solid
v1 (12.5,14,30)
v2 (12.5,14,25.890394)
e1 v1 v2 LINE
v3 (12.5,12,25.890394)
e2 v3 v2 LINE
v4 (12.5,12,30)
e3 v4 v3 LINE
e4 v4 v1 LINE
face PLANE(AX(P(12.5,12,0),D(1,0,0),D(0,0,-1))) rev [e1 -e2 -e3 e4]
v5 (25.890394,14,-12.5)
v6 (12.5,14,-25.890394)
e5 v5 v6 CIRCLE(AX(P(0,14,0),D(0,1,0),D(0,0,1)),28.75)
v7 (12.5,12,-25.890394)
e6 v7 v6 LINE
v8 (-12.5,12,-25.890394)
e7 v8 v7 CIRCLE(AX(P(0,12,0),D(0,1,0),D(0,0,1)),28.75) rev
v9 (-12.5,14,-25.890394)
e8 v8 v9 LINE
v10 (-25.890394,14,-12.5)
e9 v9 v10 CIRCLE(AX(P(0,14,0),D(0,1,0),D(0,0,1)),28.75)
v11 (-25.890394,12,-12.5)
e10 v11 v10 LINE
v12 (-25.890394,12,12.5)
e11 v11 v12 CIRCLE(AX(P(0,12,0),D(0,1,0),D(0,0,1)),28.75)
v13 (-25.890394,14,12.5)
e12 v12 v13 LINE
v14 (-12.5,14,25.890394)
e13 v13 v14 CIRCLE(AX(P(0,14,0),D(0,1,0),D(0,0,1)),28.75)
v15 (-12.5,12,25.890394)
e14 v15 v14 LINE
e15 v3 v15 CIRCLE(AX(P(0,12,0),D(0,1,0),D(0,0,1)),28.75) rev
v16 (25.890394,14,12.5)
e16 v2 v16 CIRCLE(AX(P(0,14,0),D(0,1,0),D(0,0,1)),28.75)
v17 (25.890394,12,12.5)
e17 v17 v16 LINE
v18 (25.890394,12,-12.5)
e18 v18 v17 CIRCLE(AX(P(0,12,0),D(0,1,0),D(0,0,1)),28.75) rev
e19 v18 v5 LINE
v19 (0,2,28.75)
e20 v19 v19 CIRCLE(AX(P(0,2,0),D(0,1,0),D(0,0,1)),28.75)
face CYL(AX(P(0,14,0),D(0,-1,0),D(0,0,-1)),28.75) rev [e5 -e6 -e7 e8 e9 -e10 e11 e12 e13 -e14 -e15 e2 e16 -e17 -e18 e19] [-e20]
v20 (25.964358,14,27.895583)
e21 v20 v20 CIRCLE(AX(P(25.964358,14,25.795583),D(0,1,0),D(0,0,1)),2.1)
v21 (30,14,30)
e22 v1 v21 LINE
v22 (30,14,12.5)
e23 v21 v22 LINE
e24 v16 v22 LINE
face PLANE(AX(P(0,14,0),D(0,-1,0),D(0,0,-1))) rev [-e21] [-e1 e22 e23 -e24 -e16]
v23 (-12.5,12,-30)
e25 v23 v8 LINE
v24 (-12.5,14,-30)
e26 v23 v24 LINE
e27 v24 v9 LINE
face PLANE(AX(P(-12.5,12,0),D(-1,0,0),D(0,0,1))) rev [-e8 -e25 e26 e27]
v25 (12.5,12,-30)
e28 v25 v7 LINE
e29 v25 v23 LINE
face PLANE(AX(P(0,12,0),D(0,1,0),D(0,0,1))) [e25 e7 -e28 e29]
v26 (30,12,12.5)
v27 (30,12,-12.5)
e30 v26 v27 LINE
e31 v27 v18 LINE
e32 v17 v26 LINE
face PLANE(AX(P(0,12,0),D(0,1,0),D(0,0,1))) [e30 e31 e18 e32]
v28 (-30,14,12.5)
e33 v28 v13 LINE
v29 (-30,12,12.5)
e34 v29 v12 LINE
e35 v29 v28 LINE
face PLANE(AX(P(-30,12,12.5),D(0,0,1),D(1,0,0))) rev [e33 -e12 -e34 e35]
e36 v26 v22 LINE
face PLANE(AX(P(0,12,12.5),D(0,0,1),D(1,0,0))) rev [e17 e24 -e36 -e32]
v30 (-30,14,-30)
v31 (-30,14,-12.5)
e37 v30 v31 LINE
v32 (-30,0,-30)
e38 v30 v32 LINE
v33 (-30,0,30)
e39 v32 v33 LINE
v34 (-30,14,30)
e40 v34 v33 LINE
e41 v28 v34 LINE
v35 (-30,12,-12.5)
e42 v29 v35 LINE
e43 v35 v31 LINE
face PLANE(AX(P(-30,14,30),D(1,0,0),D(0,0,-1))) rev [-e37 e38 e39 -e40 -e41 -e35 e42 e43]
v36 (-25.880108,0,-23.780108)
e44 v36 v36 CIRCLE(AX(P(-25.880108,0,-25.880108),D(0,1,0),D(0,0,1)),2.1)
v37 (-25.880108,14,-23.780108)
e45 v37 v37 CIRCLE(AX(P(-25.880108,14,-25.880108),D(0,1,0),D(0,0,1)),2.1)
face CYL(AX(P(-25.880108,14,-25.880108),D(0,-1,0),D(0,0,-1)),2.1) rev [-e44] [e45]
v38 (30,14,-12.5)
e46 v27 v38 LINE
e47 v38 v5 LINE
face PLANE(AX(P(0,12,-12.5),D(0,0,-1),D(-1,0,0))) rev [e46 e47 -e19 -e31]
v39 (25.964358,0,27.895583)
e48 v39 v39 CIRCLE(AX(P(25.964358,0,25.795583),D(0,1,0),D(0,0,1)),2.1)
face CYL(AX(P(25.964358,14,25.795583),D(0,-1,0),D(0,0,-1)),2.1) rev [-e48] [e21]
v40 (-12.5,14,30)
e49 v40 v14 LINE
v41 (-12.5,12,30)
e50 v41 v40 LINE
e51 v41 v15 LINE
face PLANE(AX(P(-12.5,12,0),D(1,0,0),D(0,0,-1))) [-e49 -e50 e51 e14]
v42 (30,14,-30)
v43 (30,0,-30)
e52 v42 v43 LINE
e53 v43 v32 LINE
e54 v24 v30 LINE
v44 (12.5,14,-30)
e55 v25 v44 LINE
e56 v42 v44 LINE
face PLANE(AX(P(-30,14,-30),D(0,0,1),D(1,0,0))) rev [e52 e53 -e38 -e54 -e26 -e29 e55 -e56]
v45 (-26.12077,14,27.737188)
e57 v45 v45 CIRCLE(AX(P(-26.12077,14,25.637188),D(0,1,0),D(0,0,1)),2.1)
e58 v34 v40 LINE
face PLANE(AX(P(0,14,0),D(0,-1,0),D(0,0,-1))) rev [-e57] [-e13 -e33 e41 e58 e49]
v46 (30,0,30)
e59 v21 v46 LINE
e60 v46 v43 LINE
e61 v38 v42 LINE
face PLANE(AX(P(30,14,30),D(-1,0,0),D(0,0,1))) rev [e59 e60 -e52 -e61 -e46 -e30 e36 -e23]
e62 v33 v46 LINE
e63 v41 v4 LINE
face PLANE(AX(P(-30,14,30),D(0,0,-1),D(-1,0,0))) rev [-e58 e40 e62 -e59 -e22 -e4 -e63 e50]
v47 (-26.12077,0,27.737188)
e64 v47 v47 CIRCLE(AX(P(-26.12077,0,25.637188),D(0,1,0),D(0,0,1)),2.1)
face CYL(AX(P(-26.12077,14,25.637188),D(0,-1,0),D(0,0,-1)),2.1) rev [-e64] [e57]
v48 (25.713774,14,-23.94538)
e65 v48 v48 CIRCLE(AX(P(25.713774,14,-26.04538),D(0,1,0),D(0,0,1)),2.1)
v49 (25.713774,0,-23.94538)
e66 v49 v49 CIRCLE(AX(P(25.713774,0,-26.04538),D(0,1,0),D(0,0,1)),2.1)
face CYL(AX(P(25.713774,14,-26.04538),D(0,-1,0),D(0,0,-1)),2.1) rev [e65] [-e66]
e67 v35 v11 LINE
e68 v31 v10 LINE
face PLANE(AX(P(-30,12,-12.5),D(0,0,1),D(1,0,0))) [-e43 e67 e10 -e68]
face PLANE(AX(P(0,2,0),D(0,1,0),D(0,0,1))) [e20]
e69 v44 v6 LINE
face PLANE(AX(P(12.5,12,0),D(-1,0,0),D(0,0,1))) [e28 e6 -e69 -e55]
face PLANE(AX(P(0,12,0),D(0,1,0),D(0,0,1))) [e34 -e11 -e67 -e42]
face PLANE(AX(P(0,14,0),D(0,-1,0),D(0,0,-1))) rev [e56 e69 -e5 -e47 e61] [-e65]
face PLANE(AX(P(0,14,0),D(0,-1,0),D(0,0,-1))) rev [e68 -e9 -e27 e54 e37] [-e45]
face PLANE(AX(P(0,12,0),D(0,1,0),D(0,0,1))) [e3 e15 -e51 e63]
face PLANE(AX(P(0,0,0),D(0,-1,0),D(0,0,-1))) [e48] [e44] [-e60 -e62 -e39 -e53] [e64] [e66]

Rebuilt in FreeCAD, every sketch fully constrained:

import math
import FreeCAD as App
import Part
import Sketcher

V = App.Vector


def add_polygon(sketch, points):
    """Adds a closed chain of lines whose ends are joined by coincident constraints."""
    first, n = sketch.GeometryCount, len(points)
    for a, b in zip(points, points[1:] + points[:1]):
        sketch.addGeometry(Part.LineSegment(App.Vector(*a, 0), App.Vector(*b, 0)), False)
    for i in range(n):
        sketch.addConstraint(Sketcher.Constraint("Coincident", first + i, 2, first + (i + 1) % n, 1))

doc = App.newDocument("Part")
body = doc.addObject("PartDesign::Body", "Body")

# Sketch on XZ plane
sketch1 = doc.addObject("Sketcher::SketchObject", "Sketch")
body.addObject(sketch1)
sketch1.AttachmentSupport = (doc.XZ_Plane, [""])
sketch1.MapMode = "FlatFace"
add_polygon(sketch1, [(-30, -30), (-30, 30), (30, 30), (30, -30)])  # lines 0-3
sketch1.addGeometry(Part.Circle(V(-26.12077, 25.637188, 0), V(0, 0, 1), 2.1), False)  # 4
sketch1.addGeometry(Part.Circle(V(25.964358, 25.795583, 0), V(0, 0, 1), 2.1), False)  # 5
sketch1.addGeometry(Part.Circle(V(-25.880108, -25.880108, 0), V(0, 0, 1), 2.1), False)  # 6
sketch1.addGeometry(Part.Circle(V(0, 0, 0), V(0, 0, 1), 28.75), False)  # 7
sketch1.addGeometry(Part.Circle(V(25.713774, -26.04538, 0), V(0, 0, 1), 2.1), False)  # 8
sketch1.addConstraint(Sketcher.Constraint("Vertical", 0))
sketch1.addConstraint(Sketcher.Constraint("Horizontal", 1))
sketch1.addConstraint(Sketcher.Constraint("Vertical", 2))
sketch1.addConstraint(Sketcher.Constraint("Horizontal", 3))
sketch1.addConstraint(Sketcher.Constraint("Coincident", 7, 3, -1, 1))
sketch1.addConstraint(Sketcher.Constraint("Equal", 4, 5))
sketch1.addConstraint(Sketcher.Constraint("Equal", 5, 6))
sketch1.addConstraint(Sketcher.Constraint("Equal", 6, 8))
sketch1.addConstraint(Sketcher.Constraint("Symmetric", 0, 2, 2, 2, -1, 1))
sketch1.addConstraint(Sketcher.Constraint("Equal", 3, 0))
sketch1.addConstraint(Sketcher.Constraint("Diameter", 4, 4.2))
sketch1.addConstraint(Sketcher.Constraint("Diameter", 7, 57.5))
sketch1.addConstraint(Sketcher.Constraint("DistanceX", 1, 1, 1, 2, 60.0))
sketch1.addConstraint(Sketcher.Constraint("DistanceX", 4, 3, -1, 1, 26.12077))
sketch1.addConstraint(Sketcher.Constraint("DistanceX", -1, 1, 5, 3, 25.964358))
sketch1.addConstraint(Sketcher.Constraint("DistanceX", 6, 3, -1, 1, 25.880108))
sketch1.addConstraint(Sketcher.Constraint("DistanceY", 6, 3, -1, 1, 25.880108))
sketch1.addConstraint(Sketcher.Constraint("DistanceY", 8, 3, -1, 1, 26.04538))
sketch1.addConstraint(Sketcher.Constraint("DistanceY", 6, 3, 5, 3, 51.675691))
sketch1.addConstraint(Sketcher.Constraint("DistanceY", -1, 1, 4, 3, 25.637188))
sketch1.addConstraint(Sketcher.Constraint("DistanceX", -1, 1, 8, 3, 25.713774))
pad1 = doc.addObject("PartDesign::Pad", "Pad")
body.addObject(pad1)
pad1.Profile = sketch1
pad1.Length = 14
pad1.Reversed = True

# Sketch on XZ plane
sketch2 = doc.addObject("Sketcher::SketchObject", "Sketch001")
body.addObject(sketch2)
sketch2.AttachmentSupport = (doc.XZ_Plane, [""])
sketch2.MapMode = "FlatFace"
sketch2.addGeometry(Part.Circle(V(0, 0, 0), V(0, 0, 1), 28.75), False)
sketch2.addConstraint(Sketcher.Constraint("Coincident", 0, 3, -1, 1))
sketch2.addConstraint(Sketcher.Constraint("Diameter", 0, 57.5))
pad2 = doc.addObject("PartDesign::Pad", "Pad001")
body.addObject(pad2)
pad2.Profile = sketch2
pad2.Length = 2
pad2.Reversed = True

# Sketch on XZ plane
sketch3 = doc.addObject("Sketcher::SketchObject", "Sketch002")
body.addObject(sketch3)
sketch3.AttachmentSupport = (doc.XZ_Plane, [""])
sketch3.MapMode = "FlatFace"
sketch3.AttachmentOffset = App.Placement(V(0, 0, -12), App.Rotation())
sketch3.addGeometry(Part.LineSegment(V(12.5, -30, 0), V(-12.5, -30, 0)), False)
sketch3.addGeometry(Part.LineSegment(V(-12.5, -30, 0), V(-12.5, -25.890394, 0)), False)
sketch3.addGeometry(Part.ArcOfCircle(Part.Circle(V(0, 0, 0), V(0, 0, 1), 28.75), math.radians(-115.771462), math.radians(-64.228538)), False)
sketch3.addGeometry(Part.LineSegment(V(12.5, -25.890394, 0), V(12.5, -30, 0)), False)
sketch3.addGeometry(Part.ArcOfCircle(Part.Circle(V(0, 0, 0), V(0, 0, 1), 28.75), math.radians(154.228538), math.radians(205.771462)), False)
sketch3.addGeometry(Part.LineSegment(V(-25.890394, -12.5, 0), V(-30, -12.5, 0)), False)
sketch3.addGeometry(Part.LineSegment(V(-30, -12.5, 0), V(-30, 12.5, 0)), False)
sketch3.addGeometry(Part.LineSegment(V(-30, 12.5, 0), V(-25.890394, 12.5, 0)), False)
sketch3.addGeometry(Part.LineSegment(V(30, -12.5, 0), V(25.890394, -12.5, 0)), False)
sketch3.addGeometry(Part.ArcOfCircle(Part.Circle(V(0, 0, 0), V(0, 0, 1), 28.75), math.radians(-25.771462), math.radians(25.771462)), False)
sketch3.addGeometry(Part.LineSegment(V(25.890394, 12.5, 0), V(30, 12.5, 0)), False)
sketch3.addGeometry(Part.LineSegment(V(30, 12.5, 0), V(30, -12.5, 0)), False)
sketch3.addGeometry(Part.ArcOfCircle(Part.Circle(V(0, 0, 0), V(0, 0, 1), 28.75), math.radians(64.228538), math.radians(115.771462)), False)
sketch3.addGeometry(Part.LineSegment(V(-12.5, 25.890394, 0), V(-12.5, 30, 0)), False)
sketch3.addGeometry(Part.LineSegment(V(-12.5, 30, 0), V(12.5, 30, 0)), False)
sketch3.addGeometry(Part.LineSegment(V(12.5, 30, 0), V(12.5, 25.890394, 0)), False)
sketch3.addConstraint(Sketcher.Constraint("Coincident", 0, 2, 1, 1))
sketch3.addConstraint(Sketcher.Constraint("Coincident", 1, 2, 2, 1))
sketch3.addConstraint(Sketcher.Constraint("Coincident", 2, 2, 3, 1))
sketch3.addConstraint(Sketcher.Constraint("Coincident", 3, 2, 0, 1))
sketch3.addConstraint(Sketcher.Constraint("Coincident", 4, 2, 5, 1))
sketch3.addConstraint(Sketcher.Constraint("Coincident", 5, 2, 6, 1))
sketch3.addConstraint(Sketcher.Constraint("Coincident", 6, 2, 7, 1))
sketch3.addConstraint(Sketcher.Constraint("Coincident", 7, 2, 4, 1))
sketch3.addConstraint(Sketcher.Constraint("Coincident", 8, 2, 9, 1))
sketch3.addConstraint(Sketcher.Constraint("Coincident", 9, 2, 10, 1))
sketch3.addConstraint(Sketcher.Constraint("Coincident", 10, 2, 11, 1))
sketch3.addConstraint(Sketcher.Constraint("Coincident", 11, 2, 8, 1))
sketch3.addConstraint(Sketcher.Constraint("Coincident", 12, 2, 13, 1))
sketch3.addConstraint(Sketcher.Constraint("Coincident", 13, 2, 14, 1))
sketch3.addConstraint(Sketcher.Constraint("Coincident", 14, 2, 15, 1))
sketch3.addConstraint(Sketcher.Constraint("Coincident", 15, 2, 12, 1))
sketch3.addConstraint(Sketcher.Constraint("Horizontal", 0))
sketch3.addConstraint(Sketcher.Constraint("Vertical", 1))
sketch3.addConstraint(Sketcher.Constraint("Vertical", 3))
sketch3.addConstraint(Sketcher.Constraint("Horizontal", 5))
sketch3.addConstraint(Sketcher.Constraint("Vertical", 6))
sketch3.addConstraint(Sketcher.Constraint("Horizontal", 7))
sketch3.addConstraint(Sketcher.Constraint("Horizontal", 8))
sketch3.addConstraint(Sketcher.Constraint("Horizontal", 10))
sketch3.addConstraint(Sketcher.Constraint("Vertical", 11))
sketch3.addConstraint(Sketcher.Constraint("Vertical", 13))
sketch3.addConstraint(Sketcher.Constraint("Horizontal", 14))
sketch3.addConstraint(Sketcher.Constraint("Vertical", 15))
sketch3.addConstraint(Sketcher.Constraint("Coincident", 2, 3, -1, 1))
sketch3.addConstraint(Sketcher.Constraint("Coincident", 4, 3, -1, 1))
sketch3.addConstraint(Sketcher.Constraint("Coincident", 9, 3, -1, 1))
sketch3.addConstraint(Sketcher.Constraint("Coincident", 12, 3, -1, 1))
sketch3.addConstraint(Sketcher.Constraint("Equal", 2, 4))
sketch3.addConstraint(Sketcher.Constraint("Equal", 4, 9))
sketch3.addConstraint(Sketcher.Constraint("Equal", 9, 12))
sketch3.addConstraint(Sketcher.Constraint("Symmetric", 5, 2, 10, 2, -1, 1))
sketch3.addConstraint(Sketcher.Constraint("Symmetric", 3, 2, 13, 2, -1, 1))
sketch3.addConstraint(Sketcher.Constraint("Horizontal", 1, 2, 2, 2))
sketch3.addConstraint(Sketcher.Constraint("Horizontal", 5, 2, 8, 2))
sketch3.addConstraint(Sketcher.Constraint("Horizontal", 7, 2, 9, 2))
sketch3.addConstraint(Sketcher.Constraint("Horizontal", 12, 2, 15, 2))
sketch3.addConstraint(Sketcher.Constraint("Equal", 10, 1))
sketch3.addConstraint(Sketcher.Constraint("Equal", 14, 6))
sketch3.addConstraint(Sketcher.Constraint("DistanceX", 0, 2, 0, 1, 25.0))
sketch3.addConstraint(Sketcher.Constraint("Radius", 2, 28.75))
sketch3.addConstraint(Sketcher.Constraint("DistanceY", 0, 2, -1, 1, 30.0))
pocket1 = doc.addObject("PartDesign::Pocket", "Pocket")
body.addObject(pocket1)
pocket1.Profile = sketch3
pocket1.Length = 2

doc.recompute()
